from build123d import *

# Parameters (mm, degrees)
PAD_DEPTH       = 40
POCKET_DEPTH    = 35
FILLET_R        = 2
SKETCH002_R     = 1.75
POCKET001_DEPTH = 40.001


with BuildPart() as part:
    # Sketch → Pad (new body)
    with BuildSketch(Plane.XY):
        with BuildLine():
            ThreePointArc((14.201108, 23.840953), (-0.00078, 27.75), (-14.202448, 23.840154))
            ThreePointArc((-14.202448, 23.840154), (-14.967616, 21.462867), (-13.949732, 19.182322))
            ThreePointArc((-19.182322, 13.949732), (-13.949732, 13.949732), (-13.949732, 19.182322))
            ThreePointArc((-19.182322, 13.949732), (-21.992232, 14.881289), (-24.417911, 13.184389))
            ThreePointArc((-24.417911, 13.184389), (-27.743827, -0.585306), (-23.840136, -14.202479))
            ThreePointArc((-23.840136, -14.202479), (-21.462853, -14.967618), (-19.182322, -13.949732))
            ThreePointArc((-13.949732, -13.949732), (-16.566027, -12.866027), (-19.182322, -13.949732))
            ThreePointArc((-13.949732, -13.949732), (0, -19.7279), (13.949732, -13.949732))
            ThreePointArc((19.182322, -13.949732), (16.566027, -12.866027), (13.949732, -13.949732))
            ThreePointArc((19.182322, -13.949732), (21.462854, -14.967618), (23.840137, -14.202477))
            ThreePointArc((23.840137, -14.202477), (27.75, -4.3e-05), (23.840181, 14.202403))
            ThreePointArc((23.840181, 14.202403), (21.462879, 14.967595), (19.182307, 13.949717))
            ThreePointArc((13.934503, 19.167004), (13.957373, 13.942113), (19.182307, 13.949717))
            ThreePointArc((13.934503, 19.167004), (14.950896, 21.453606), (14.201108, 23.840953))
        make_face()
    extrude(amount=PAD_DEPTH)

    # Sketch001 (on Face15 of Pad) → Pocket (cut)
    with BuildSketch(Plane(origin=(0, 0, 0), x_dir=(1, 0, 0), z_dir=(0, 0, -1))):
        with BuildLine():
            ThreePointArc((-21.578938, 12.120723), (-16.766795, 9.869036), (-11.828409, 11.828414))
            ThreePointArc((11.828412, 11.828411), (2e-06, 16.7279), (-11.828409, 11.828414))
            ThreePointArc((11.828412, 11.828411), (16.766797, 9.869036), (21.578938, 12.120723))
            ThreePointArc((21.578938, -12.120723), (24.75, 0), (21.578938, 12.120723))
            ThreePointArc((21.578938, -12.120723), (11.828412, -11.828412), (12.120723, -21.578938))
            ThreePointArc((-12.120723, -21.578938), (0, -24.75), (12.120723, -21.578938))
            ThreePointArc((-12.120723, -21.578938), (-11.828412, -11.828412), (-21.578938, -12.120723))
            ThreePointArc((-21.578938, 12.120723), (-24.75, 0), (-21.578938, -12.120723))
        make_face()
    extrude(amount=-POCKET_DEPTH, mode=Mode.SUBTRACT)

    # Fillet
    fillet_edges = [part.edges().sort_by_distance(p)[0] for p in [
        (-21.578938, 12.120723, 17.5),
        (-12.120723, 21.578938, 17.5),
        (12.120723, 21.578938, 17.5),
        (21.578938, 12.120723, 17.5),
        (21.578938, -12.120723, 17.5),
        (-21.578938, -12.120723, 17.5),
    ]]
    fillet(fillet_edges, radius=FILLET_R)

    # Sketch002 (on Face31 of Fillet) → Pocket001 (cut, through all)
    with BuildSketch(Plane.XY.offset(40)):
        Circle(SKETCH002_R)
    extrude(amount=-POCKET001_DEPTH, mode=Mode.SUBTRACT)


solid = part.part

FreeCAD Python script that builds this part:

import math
import FreeCAD as App
import Part
import Sketcher
from FreeCAD import Vector


def edges_at(feature, points):
    """Names of the edges that pass closest to the given points."""
    edges = feature.Shape.Edges
    near = lambda p: min(range(len(edges)), key=lambda i: edges[i].distToShape(Part.Vertex(*p))[0])
    return sorted({f"Edge{near(p) + 1}" for p in points})

doc = App.newDocument("Part")
body = doc.addObject("PartDesign::Body", "Body")

# Sketch on XY plane
sketch1 = body.newObject("Sketcher::SketchObject", "Sketch")
sketch1.AttachmentSupport = (doc.getObject("XY_Plane"), [""])
sketch1.MapMode = "FlatFace"
sketch1.addGeometry([
    Part.ArcOfCircle(Part.Circle(Vector(0, 0, 0), Vector(0, 0, 1), 27.7), math.radians(59), math.radians(121)),  # 0
    Part.ArcOfCircle(Part.Circle(Vector(-11.5, 21.7, 0), Vector(0, 0, 1), 3.5), math.radians(141), math.radians(225)),  # 1
    Part.ArcOfCircle(Part.Circle(Vector(-16.6, 16.6, 0), Vector(0, 0, 1), 3.7), math.radians(-135), math.radians(45)),  # 2
    Part.ArcOfCircle(Part.Circle(Vector(-21.5, 11.6, 0), Vector(0, 0, 1), 3.3), math.radians(45), math.radians(152)),  # 3
    Part.ArcOfCircle(Part.Circle(Vector(0, 0, 0), Vector(0, 0, 1), 27.7), math.radians(152), math.radians(211)),  # 4
    Part.ArcOfCircle(Part.Circle(Vector(-21.7, -11.5, 0), Vector(0, 0, 1), 3.5), math.radians(-129), math.radians(-45)),  # 5
    Part.ArcOfCircle(Part.Circle(Vector(-16.6, -16.6, 0), Vector(0, 0, 1), 3.7), math.radians(45), math.radians(135)),  # 6
    Part.ArcOfCircle(Part.Circle(Vector(0, 0, 0), Vector(0, 0, 1), 19.7), math.radians(-135), math.radians(-45)),  # 7
    Part.ArcOfCircle(Part.Circle(Vector(16.6, -16.6, 0), Vector(0, 0, 1), 3.7), math.radians(45), math.radians(135)),  # 8
    Part.ArcOfCircle(Part.Circle(Vector(21.7, -11.5, 0), Vector(0, 0, 1), 3.5), math.radians(-135), math.radians(-51)),  # 9
    Part.ArcOfCircle(Part.Circle(Vector(0, 0, 0), Vector(0, 0, 1), 27.7), math.radians(-31), math.radians(31)),  # 10
    Part.ArcOfCircle(Part.Circle(Vector(21.7, 11.5, 0), Vector(0, 0, 1), 3.5), math.radians(51), math.radians(135)),  # 11
    Part.ArcOfCircle(Part.Circle(Vector(16.6, 16.6, 0), Vector(0, 0, 1), 3.7), math.radians(135), math.radians(315)),  # 12
    Part.ArcOfCircle(Part.Circle(Vector(11.4, 21.7, 0), Vector(0, 0, 1), 3.5), math.radians(-45), math.radians(38)),  # 13
], False)
sketch1.addConstraint([
    Sketcher.Constraint("Coincident", 0, 2, 1, 1),
    Sketcher.Constraint("Tangent", 1, 2, 2, 2),
    Sketcher.Constraint("Tangent", 2, 1, 3, 1),
    Sketcher.Constraint("Tangent", 3, 2, 4, 1),
    Sketcher.Constraint("Coincident", 4, 2, 5, 1),
    Sketcher.Constraint("Tangent", 5, 2, 6, 2),
    Sketcher.Constraint("Tangent", 6, 1, 7, 1),
    Sketcher.Constraint("Tangent", 7, 2, 8, 2),
    Sketcher.Constraint("Tangent", 8, 1, 9, 1),
    Sketcher.Constraint("Coincident", 9, 2, 10, 1),
    Sketcher.Constraint("Coincident", 10, 2, 11, 1),
    Sketcher.Constraint("Tangent", 11, 2, 12, 2),
    Sketcher.Constraint("Tangent", 12, 1, 13, 1),
    Sketcher.Constraint("Coincident", 13, 2, 0, 1),
    Sketcher.Constraint("Coincident", 0, 3, -1, 1),
    Sketcher.Constraint("Coincident", 4, 3, -1, 1),
    Sketcher.Constraint("Coincident", 7, 3, -1, 1),
    Sketcher.Constraint("Coincident", 10, 3, -1, 1),
    Sketcher.Constraint("Equal", 2, 6),
    Sketcher.Constraint("Equal", 6, 8),
    Sketcher.Constraint("Equal", 5, 9),
    Sketcher.Constraint("Equal", 4, 10),
    Sketcher.Constraint("Equal", 8, 12),
    Sketcher.Constraint("Symmetric", 2, 3, 8, 3, -1, 1),
    Sketcher.Constraint("Symmetric", 6, 3, 12, 3, -1, 1),
    Sketcher.Constraint("Symmetric", 5, 3, 9, 3, -2),
    Sketcher.Constraint("Horizontal", 5, 2, 6, 1),
    Sketcher.Constraint("Vertical", 2, 1, 5, 2),
    Sketcher.Constraint("Vertical", 1, 2, 6, 1),
    Sketcher.Constraint("Radius", 2, 3.7),
    Sketcher.Constraint("Radius", 0, 27.749999),
    Sketcher.Constraint("Radius", 5, 3.492801),
    Sketcher.Constraint("Radius", 7, 19.727901),
    Sketcher.Constraint("Radius", 11, 3.492811),
    Sketcher.Constraint("DistanceY", -1, 1, 3, 3, 11.617),
    Sketcher.Constraint("Radius", 1, 3.492783),
    Sketcher.Constraint("Radius", 3, 3.298982),
    Sketcher.Constraint("Radius", 13, 3.539526),
    Sketcher.Constraint("DistanceX", 11, 3, 10, 2, 2.188098),
    Sketcher.Constraint("DistanceY", 10, 2, 12, 1, 4.964601),
])
pad1 = body.newObject("PartDesign::Pad", "Pad")
pad1.Profile = sketch1
pad1.Length = 40

# Sketch on XY plane
sketch2 = body.newObject("Sketcher::SketchObject", "Sketch001")
sketch2.AttachmentSupport = (doc.getObject("XY_Plane"), [""])
sketch2.MapMode = "FlatFace"
sketch2.addGeometry([
    Part.ArcOfCircle(Part.Circle(Vector(-17, -17, 0), Vector(0, 0, 1), 7), math.radians(45), math.radians(138)),  # 0
    Part.ArcOfCircle(Part.Circle(Vector(0, 0, 0), Vector(0, 0, 1), 25), math.radians(151), math.radians(209)),  # 1
    Part.ArcOfCircle(Part.Circle(Vector(-17, 17, 0), Vector(0, 0, 1), 7), math.radians(-138), math.radians(48)),  # 2
    Part.ArcOfCircle(Part.Circle(Vector(0, 0, 0), Vector(0, 0, 1), 25), math.radians(61), math.radians(119)),  # 3
    Part.ArcOfCircle(Part.Circle(Vector(17, 17, 0), Vector(0, 0, 1), 7), math.radians(132), math.radians(318)),  # 4
    Part.ArcOfCircle(Part.Circle(Vector(0, 0, 0), Vector(0, 0, 1), 25), math.radians(-29), math.radians(29)),  # 5
    Part.ArcOfCircle(Part.Circle(Vector(17, -17, 0), Vector(0, 0, 1), 7), math.radians(42), math.radians(135)),  # 6
    Part.ArcOfCircle(Part.Circle(Vector(0, 0, 0), Vector(0, 0, 1), 17), math.radians(-135), math.radians(-45)),  # 7
], False)
sketch2.addConstraint([
    Sketcher.Constraint("Coincident", 0, 2, 1, 2),
    Sketcher.Constraint("Coincident", 1, 1, 2, 1),
    Sketcher.Constraint("Coincident", 2, 2, 3, 2),
    Sketcher.Constraint("Coincident", 3, 1, 4, 1),
    Sketcher.Constraint("Coincident", 4, 2, 5, 2),
    Sketcher.Constraint("Coincident", 5, 1, 6, 1),
    Sketcher.Constraint("Tangent", 6, 2, 7, 2),
    Sketcher.Constraint("Tangent", 7, 1, 0, 1),
    Sketcher.Constraint("Coincident", 1, 3, -1, 1),
    Sketcher.Constraint("Coincident", 3, 3, -1, 1),
    Sketcher.Constraint("Coincident", 5, 3, -1, 1),
    Sketcher.Constraint("Coincident", 7, 3, -1, 1),
    Sketcher.Constraint("Equal", 0, 2),
    Sketcher.Constraint("Equal", 1, 3),
    Sketcher.Constraint("Equal", 2, 4),
    Sketcher.Constraint("Equal", 3, 5),
    Sketcher.Constraint("Equal", 4, 6),
    Sketcher.Constraint("Symmetric", 0, 3, 4, 3, -1, 1),
    Sketcher.Constraint("Symmetric", 2, 3, 6, 3, -1, 1),
    Sketcher.Constraint("Horizontal", 2, 3, 4, 3),
    Sketcher.Constraint("Radius", 0, 6.700001),
    Sketcher.Constraint("Radius", 1, 24.749999),
    Sketcher.Constraint("Radius", 7, 16.7279),
    Sketcher.Constraint("DistanceY", 0, 3, -1, 1, 16.566029),
])
pocket1 = body.newObject("PartDesign::Pocket", "Pocket")
pocket1.Profile = sketch2
pocket1.Length = 35
pocket1.Reversed = True
doc.recompute()

fillet = body.newObject("PartDesign::Fillet", "Fillet")
fillet.Base = (pocket1, edges_at(pocket1, [
    (-21.579, 12.121, 17.5),
    (-12.121, 21.579, 17.5),
    (12.121, 21.579, 17.5),
    (21.579, 12.121, 17.5),
    (21.579, -12.121, 17.5),
    (-21.579, -12.121, 17.5),
]))
fillet.Radius = 2

# Sketch on XY plane
sketch3 = body.newObject("Sketcher::SketchObject", "Sketch002")
sketch3.AttachmentSupport = (doc.getObject("XY_Plane"), [""])
sketch3.MapMode = "FlatFace"
sketch3.AttachmentOffset = App.Placement(Vector(0, 0, 40), App.Rotation())
sketch3.addGeometry(Part.Circle(Vector(0, 0, 0), Vector(0, 0, 1), 1.8), False)
sketch3.addConstraint([
    Sketcher.Constraint("Coincident", 0, 3, -1, 1),
    Sketcher.Constraint("Diameter", 0, 3.5),
])
pocket2 = body.newObject("PartDesign::Pocket", "Pocket001")
pocket2.Profile = sketch3
pocket2.Type = "ThroughAll"

doc.recompute()
